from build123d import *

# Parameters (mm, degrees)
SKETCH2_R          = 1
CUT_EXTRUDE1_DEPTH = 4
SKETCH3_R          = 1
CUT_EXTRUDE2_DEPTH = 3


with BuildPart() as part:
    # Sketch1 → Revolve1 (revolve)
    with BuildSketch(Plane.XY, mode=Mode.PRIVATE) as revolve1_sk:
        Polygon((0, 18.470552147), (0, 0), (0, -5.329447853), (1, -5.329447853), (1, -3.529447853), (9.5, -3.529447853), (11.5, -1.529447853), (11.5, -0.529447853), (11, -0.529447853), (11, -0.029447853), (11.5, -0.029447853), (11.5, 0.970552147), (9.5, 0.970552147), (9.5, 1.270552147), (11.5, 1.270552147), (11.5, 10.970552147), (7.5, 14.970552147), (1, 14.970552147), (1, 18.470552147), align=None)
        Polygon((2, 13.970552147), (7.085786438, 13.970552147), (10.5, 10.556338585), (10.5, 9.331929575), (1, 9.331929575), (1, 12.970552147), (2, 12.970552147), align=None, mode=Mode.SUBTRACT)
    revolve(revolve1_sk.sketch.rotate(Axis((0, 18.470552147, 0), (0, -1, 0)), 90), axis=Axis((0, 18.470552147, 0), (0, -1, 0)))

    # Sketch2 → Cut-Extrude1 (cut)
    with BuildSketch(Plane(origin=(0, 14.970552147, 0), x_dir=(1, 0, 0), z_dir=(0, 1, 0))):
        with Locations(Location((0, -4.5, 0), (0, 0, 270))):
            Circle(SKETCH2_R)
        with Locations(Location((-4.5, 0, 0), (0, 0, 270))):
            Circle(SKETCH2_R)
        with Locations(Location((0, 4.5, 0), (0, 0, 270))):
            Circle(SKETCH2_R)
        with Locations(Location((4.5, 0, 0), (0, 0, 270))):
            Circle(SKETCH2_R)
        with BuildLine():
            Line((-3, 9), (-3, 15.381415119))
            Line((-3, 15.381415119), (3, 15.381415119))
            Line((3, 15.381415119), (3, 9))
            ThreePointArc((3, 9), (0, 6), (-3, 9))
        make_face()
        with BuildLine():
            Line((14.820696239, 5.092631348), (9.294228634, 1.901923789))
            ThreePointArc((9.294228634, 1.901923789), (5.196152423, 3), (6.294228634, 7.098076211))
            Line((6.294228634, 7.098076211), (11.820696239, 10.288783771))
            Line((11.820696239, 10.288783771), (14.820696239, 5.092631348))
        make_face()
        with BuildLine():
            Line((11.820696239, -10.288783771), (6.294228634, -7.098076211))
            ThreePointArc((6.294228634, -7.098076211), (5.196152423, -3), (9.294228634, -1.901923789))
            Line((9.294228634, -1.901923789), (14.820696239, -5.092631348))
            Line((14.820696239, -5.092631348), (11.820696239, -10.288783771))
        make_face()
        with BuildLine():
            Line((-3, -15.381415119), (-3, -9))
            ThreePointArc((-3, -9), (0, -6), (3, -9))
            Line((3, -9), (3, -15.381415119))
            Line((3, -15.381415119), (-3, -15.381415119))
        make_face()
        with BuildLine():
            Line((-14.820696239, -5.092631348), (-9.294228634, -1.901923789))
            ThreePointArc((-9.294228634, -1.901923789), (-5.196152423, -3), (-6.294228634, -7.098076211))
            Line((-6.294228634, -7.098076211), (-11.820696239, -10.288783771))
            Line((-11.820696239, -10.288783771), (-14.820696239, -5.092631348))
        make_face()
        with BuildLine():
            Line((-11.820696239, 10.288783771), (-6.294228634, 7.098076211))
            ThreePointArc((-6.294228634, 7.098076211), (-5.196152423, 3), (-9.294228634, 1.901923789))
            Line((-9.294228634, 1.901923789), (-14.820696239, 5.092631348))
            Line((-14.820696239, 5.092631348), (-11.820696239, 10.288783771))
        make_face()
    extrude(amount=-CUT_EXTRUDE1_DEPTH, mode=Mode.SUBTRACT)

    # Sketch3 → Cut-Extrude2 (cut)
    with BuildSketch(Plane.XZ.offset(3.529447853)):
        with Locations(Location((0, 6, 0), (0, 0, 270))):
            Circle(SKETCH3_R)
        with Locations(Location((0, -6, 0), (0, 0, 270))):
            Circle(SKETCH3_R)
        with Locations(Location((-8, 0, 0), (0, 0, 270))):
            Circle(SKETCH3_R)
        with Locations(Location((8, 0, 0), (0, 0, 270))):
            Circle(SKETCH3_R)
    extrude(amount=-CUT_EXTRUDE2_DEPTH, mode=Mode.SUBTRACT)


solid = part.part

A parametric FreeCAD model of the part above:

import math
import FreeCAD as App
import Part
import Sketcher
from FreeCAD import Vector
Q = App.Units.Quantity

doc = App.newDocument("Part")
body = doc.addObject("PartDesign::Body", "Body")

# Sketch on XY plane
sketch1 = doc.addObject("Sketcher::SketchObject", "Sketch")
body.addObject(sketch1)
sketch1.AttachmentSupport = (doc.XY_Plane, [""])
sketch1.MapMode = "FlatFace"
sketch1.addGeometry(Part.LineSegment(Vector(0, 18.47, 0), Vector(0, -5.33, 0)), False)
sketch1.addGeometry(Part.LineSegment(Vector(0, -5.33, 0), Vector(1, -5.33, 0)), False)
sketch1.addGeometry(Part.LineSegment(Vector(1, -5.33, 0), Vector(1, -3.53, 0)), False)
sketch1.addGeometry(Part.LineSegment(Vector(1, -3.53, 0), Vector(9.5, -3.53, 0)), False)
sketch1.addGeometry(Part.LineSegment(Vector(9.5, -3.53, 0), Vector(11.5, -1.53, 0)), False)
sketch1.addGeometry(Part.LineSegment(Vector(11.5, -1.53, 0), Vector(11.5, -0.53, 0)), False)
sketch1.addGeometry(Part.LineSegment(Vector(11.5, -0.53, 0), Vector(11, -0.53, 0)), False)
sketch1.addGeometry(Part.LineSegment(Vector(11, -0.53, 0), Vector(11, -0.03, 0)), False)
sketch1.addGeometry(Part.LineSegment(Vector(11, -0.03, 0), Vector(11.5, -0.03, 0)), False)
sketch1.addGeometry(Part.LineSegment(Vector(11.5, -0.03, 0), Vector(11.5, 0.97, 0)), False)
sketch1.addGeometry(Part.LineSegment(Vector(11.5, 0.97, 0), Vector(9.5, 0.97, 0)), False)
sketch1.addGeometry(Part.LineSegment(Vector(9.5, 0.97, 0), Vector(9.5, 1.27, 0)), False)
sketch1.addGeometry(Part.LineSegment(Vector(9.5, 1.27, 0), Vector(11.5, 1.27, 0)), False)
sketch1.addGeometry(Part.LineSegment(Vector(11.5, 1.27, 0), Vector(11.5, 10.97, 0)), False)
sketch1.addGeometry(Part.LineSegment(Vector(11.5, 10.97, 0), Vector(7.5, 14.97, 0)), False)
sketch1.addGeometry(Part.LineSegment(Vector(7.5, 14.97, 0), Vector(1, 14.97, 0)), False)
sketch1.addGeometry(Part.LineSegment(Vector(1, 14.97, 0), Vector(1, 18.47, 0)), False)
sketch1.addGeometry(Part.LineSegment(Vector(1, 18.47, 0), Vector(0, 18.47, 0)), False)
sketch1.addGeometry(Part.LineSegment(Vector(2, 12.97, 0), Vector(2, 13.97, 0)), False)
sketch1.addGeometry(Part.LineSegment(Vector(2, 13.97, 0), Vector(7.09, 13.97, 0)), False)
sketch1.addGeometry(Part.LineSegment(Vector(7.09, 13.97, 0), Vector(10.5, 10.56, 0)), False)
sketch1.addGeometry(Part.LineSegment(Vector(10.5, 10.56, 0), Vector(10.5, 9.33, 0)), False)
sketch1.addGeometry(Part.LineSegment(Vector(10.5, 9.33, 0), Vector(1, 9.33, 0)), False)
sketch1.addGeometry(Part.LineSegment(Vector(1, 9.33, 0), Vector(1, 12.97, 0)), False)
sketch1.addGeometry(Part.LineSegment(Vector(1, 12.97, 0), Vector(2, 12.97, 0)), False)
sketch1.addConstraint(Sketcher.Constraint("Coincident", 0, 2, 1, 1))
sketch1.addConstraint(Sketcher.Constraint("Coincident", 1, 2, 2, 1))
sketch1.addConstraint(Sketcher.Constraint("Coincident", 2, 2, 3, 1))
sketch1.addConstraint(Sketcher.Constraint("Coincident", 3, 2, 4, 1))
sketch1.addConstraint(Sketcher.Constraint("Coincident", 4, 2, 5, 1))
sketch1.addConstraint(Sketcher.Constraint("Coincident", 5, 2, 6, 1))
sketch1.addConstraint(Sketcher.Constraint("Coincident", 6, 2, 7, 1))
sketch1.addConstraint(Sketcher.Constraint("Coincident", 7, 2, 8, 1))
sketch1.addConstraint(Sketcher.Constraint("Coincident", 8, 2, 9, 1))
sketch1.addConstraint(Sketcher.Constraint("Coincident", 9, 2, 10, 1))
sketch1.addConstraint(Sketcher.Constraint("Coincident", 10, 2, 11, 1))
sketch1.addConstraint(Sketcher.Constraint("Coincident", 11, 2, 12, 1))
sketch1.addConstraint(Sketcher.Constraint("Coincident", 12, 2, 13, 1))
sketch1.addConstraint(Sketcher.Constraint("Coincident", 13, 2, 14, 1))
sketch1.addConstraint(Sketcher.Constraint("Coincident", 14, 2, 15, 1))
sketch1.addConstraint(Sketcher.Constraint("Coincident", 15, 2, 16, 1))
sketch1.addConstraint(Sketcher.Constraint("Coincident", 16, 2, 17, 1))
sketch1.addConstraint(Sketcher.Constraint("Coincident", 17, 2, 0, 1))
sketch1.addConstraint(Sketcher.Constraint("Coincident", 18, 2, 19, 1))
sketch1.addConstraint(Sketcher.Constraint("Coincident", 19, 2, 20, 1))
sketch1.addConstraint(Sketcher.Constraint("Coincident", 20, 2, 21, 1))
sketch1.addConstraint(Sketcher.Constraint("Coincident", 21, 2, 22, 1))
sketch1.addConstraint(Sketcher.Constraint("Coincident", 22, 2, 23, 1))
sketch1.addConstraint(Sketcher.Constraint("Coincident", 23, 2, 24, 1))
sketch1.addConstraint(Sketcher.Constraint("Coincident", 24, 2, 18, 1))
sketch1.addConstraint(Sketcher.Constraint("Vertical", 0))
sketch1.addConstraint(Sketcher.Constraint("Horizontal", 1))
sketch1.addConstraint(Sketcher.Constraint("Vertical", 2))
sketch1.addConstraint(Sketcher.Constraint("Horizontal", 3))
sketch1.addConstraint(Sketcher.Constraint("Vertical", 5))
sketch1.addConstraint(Sketcher.Constraint("Horizontal", 6))
sketch1.addConstraint(Sketcher.Constraint("Vertical", 7))
sketch1.addConstraint(Sketcher.Constraint("Horizontal", 8))
sketch1.addConstraint(Sketcher.Constraint("Vertical", 9))
sketch1.addConstraint(Sketcher.Constraint("Horizontal", 10))
sketch1.addConstraint(Sketcher.Constraint("Vertical", 11))
sketch1.addConstraint(Sketcher.Constraint("Horizontal", 12))
sketch1.addConstraint(Sketcher.Constraint("Vertical", 13))
sketch1.addConstraint(Sketcher.Constraint("Horizontal", 15))
sketch1.addConstraint(Sketcher.Constraint("Vertical", 16))
sketch1.addConstraint(Sketcher.Constraint("Horizontal", 17))
sketch1.addConstraint(Sketcher.Constraint("Vertical", 18))
sketch1.addConstraint(Sketcher.Constraint("Horizontal", 19))
sketch1.addConstraint(Sketcher.Constraint("Vertical", 21))
sketch1.addConstraint(Sketcher.Constraint("Horizontal", 22))
sketch1.addConstraint(Sketcher.Constraint("Vertical", 23))
sketch1.addConstraint(Sketcher.Constraint("Horizontal", 24))
sketch1.addConstraint(Sketcher.Constraint("PointOnObject", 0, 2, -2))
sketch1.addConstraint(Sketcher.Constraint("Perpendicular", 4, 14))
sketch1.addConstraint(Sketcher.Constraint("Parallel", 14, 20))
sketch1.addConstraint(Sketcher.Constraint("Vertical", 5, 2, 8, 2))
sketch1.addConstraint(Sketcher.Constraint("Vertical", 3, 2, 10, 2))
sketch1.addConstraint(Sketcher.Constraint("Vertical", 9, 2, 12, 2))
sketch1.addConstraint(Sketcher.Constraint("Vertical", 2, 2, 15, 2))
sketch1.addConstraint(Sketcher.Constraint("Vertical", 16, 2, 22, 2))
sketch1.addConstraint(Sketcher.Constraint("Equal", 17, 24))
sketch1.addConstraint(Sketcher.Constraint("Equal", 24, 5))
sketch1.addConstraint(Sketcher.Constraint("Equal", 8, 7))
sketch1.addConstraint(Sketcher.Constraint("Equal", 5, 9))
sketch1.addConstraint(Sketcher.Constraint("Equal", 9, 18))
sketch1.addConstraint(Sketcher.Constraint("DistanceX", 1, 1, 1, 2, Q("1 mm")))
sketch1.addConstraint(Sketcher.Constraint("DistanceX", 10, 2, 10, 1, Q("2 mm")))
sketch1.addConstraint(Sketcher.Constraint("Angle", 4, Q("45 deg")))
sketch1.addConstraint(Sketcher.Constraint("DistanceX", 3, 1, 3, 2, Q("8.5 mm")))
sketch1.addConstraint(Sketcher.Constraint("DistanceX", 6, 2, 6, 1, Q("0.5 mm")))
sketch1.addConstraint(Sketcher.Constraint("DistanceX", 15, 2, 15, 1, Q("6.5 mm")))
sketch1.addConstraint(Sketcher.Constraint("DistanceX", 22, 2, 22, 1, Q("9.5 mm")))
sketch1.addConstraint(Sketcher.Constraint("DistanceY", 0, 2, 0, 1, Q("23.8 mm")))
sketch1.addConstraint(Sketcher.Constraint("DistanceY", 2, 1, 2, 2, Q("1.8 mm")))
sketch1.addConstraint(Sketcher.Constraint("DistanceY", 11, 1, 11, 2, Q("0.3 mm")))
sketch1.addConstraint(Sketcher.Constraint("DistanceY", 13, 1, 13, 2, Q("9.7 mm")))
sketch1.addConstraint(Sketcher.Constraint("DistanceY", 18, 2, 15, 2, Q("1 mm")))
sketch1.addConstraint(Sketcher.Constraint("DistanceY", 21, 2, 21, 1, Q("1.224409 mm")))
sketch1.addConstraint(Sketcher.Constraint("DistanceX", 19, 1, 19, 2, Q("5.085786 mm")))
sketch1.addConstraint(Sketcher.Constraint("DistanceY", -1, 1, 20, 2, Q("10.556339 mm")))
revolution = doc.addObject("PartDesign::Revolution", "Revolution")
body.addObject(revolution)
revolution.Profile = sketch1
revolution.ReferenceAxis = (sketch1, ["V_Axis"])
revolution.Angle = 360

# Sketch on XZ plane
sketch2 = doc.addObject("Sketcher::SketchObject", "Sketch001")
body.addObject(sketch2)
sketch2.AttachmentSupport = (doc.XZ_Plane, [""])
sketch2.MapMode = "FlatFace"
sketch2.AttachmentOffset = App.Placement(Vector(0, 0, -14.970552), App.Rotation())
sketch2.addGeometry(Part.Circle(Vector(0, 4.5, 0), Vector(0, 0, 1), 1), False)
sketch2.addGeometry(Part.Circle(Vector(-4.5, 0, 0), Vector(0, 0, 1), 1), False)
sketch2.addGeometry(Part.Circle(Vector(0, -4.5, 0), Vector(0, 0, 1), 1), False)
sketch2.addGeometry(Part.Circle(Vector(4.5, 0, 0), Vector(0, 0, 1), 1), False)
sketch2.addGeometry(Part.LineSegment(Vector(-3, -15.4, 0), Vector(-3, -9, 0)), False)
sketch2.addGeometry(Part.ArcOfCircle(Part.Circle(Vector(0, -9, 0), Vector(0, 0, 1), 3), math.radians(0), math.radians(180)), False)
sketch2.addGeometry(Part.LineSegment(Vector(3, -9, 0), Vector(3, -15.4, 0)), False)
sketch2.addGeometry(Part.LineSegment(Vector(3, -15.4, 0), Vector(-3, -15.4, 0)), False)
sketch2.addGeometry(Part.LineSegment(Vector(9.3, -1.9, 0), Vector(14.8, -5.1, 0)), False)
sketch2.addGeometry(Part.LineSegment(Vector(14.8, -5.1, 0), Vector(11.8, -10.3, 0)), False)
sketch2.addGeometry(Part.LineSegment(Vector(11.8, -10.3, 0), Vector(6.3, -7.1, 0)), False)
sketch2.addGeometry(Part.ArcOfCircle(Part.Circle(Vector(7.8, -4.5, 0), Vector(0, 0, 1), 3), math.radians(60), math.radians(240)), False)
sketch2.addGeometry(Part.LineSegment(Vector(6.3, 7.1, 0), Vector(11.8, 10.3, 0)), False)
sketch2.addGeometry(Part.LineSegment(Vector(11.8, 10.3, 0), Vector(14.8, 5.1, 0)), False)
sketch2.addGeometry(Part.LineSegment(Vector(14.8, 5.1, 0), Vector(9.3, 1.9, 0)), False)
sketch2.addGeometry(Part.ArcOfCircle(Part.Circle(Vector(7.8, 4.5, 0), Vector(0, 0, 1), 3), math.radians(120), math.radians(300)), False)
sketch2.addGeometry(Part.LineSegment(Vector(-3, 9, 0), Vector(-3, 15.4, 0)), False)
sketch2.addGeometry(Part.LineSegment(Vector(-3, 15.4, 0), Vector(3, 15.4, 0)), False)
sketch2.addGeometry(Part.LineSegment(Vector(3, 15.4, 0), Vector(3, 9, 0)), False)
sketch2.addGeometry(Part.ArcOfCircle(Part.Circle(Vector(0, 9, 0), Vector(0, 0, 1), 3), math.radians(180), math.radians(360)), False)
sketch2.addGeometry(Part.LineSegment(Vector(-9.3, 1.9, 0), Vector(-14.8, 5.1, 0)), False)
sketch2.addGeometry(Part.LineSegment(Vector(-14.8, 5.1, 0), Vector(-11.8, 10.3, 0)), False)
sketch2.addGeometry(Part.LineSegment(Vector(-11.8, 10.3, 0), Vector(-6.3, 7.1, 0)), False)
sketch2.addGeometry(Part.ArcOfCircle(Part.Circle(Vector(-7.8, 4.5, 0), Vector(0, 0, 1), 3), math.radians(-120), math.radians(60)), False)
sketch2.addGeometry(Part.LineSegment(Vector(-6.3, -7.1, 0), Vector(-11.8, -10.3, 0)), False)
sketch2.addGeometry(Part.LineSegment(Vector(-11.8, -10.3, 0), Vector(-14.8, -5.1, 0)), False)
sketch2.addGeometry(Part.LineSegment(Vector(-14.8, -5.1, 0), Vector(-9.3, -1.9, 0)), False)
sketch2.addGeometry(Part.ArcOfCircle(Part.Circle(Vector(-7.8, -4.5, 0), Vector(0, 0, 1), 3), math.radians(-60), math.radians(120)), False)
sketch2.addConstraint(Sketcher.Constraint("Tangent", 4, 2, 5, 2))
sketch2.addConstraint(Sketcher.Constraint("Tangent", 5, 1, 6, 1))
sketch2.addConstraint(Sketcher.Constraint("Coincident", 6, 2, 7, 1))
sketch2.addConstraint(Sketcher.Constraint("Coincident", 7, 2, 4, 1))
sketch2.addConstraint(Sketcher.Constraint("Coincident", 8, 2, 9, 1))
sketch2.addConstraint(Sketcher.Constraint("Coincident", 9, 2, 10, 1))
sketch2.addConstraint(Sketcher.Constraint("Tangent", 10, 2, 11, 2))
sketch2.addConstraint(Sketcher.Constraint("Tangent", 11, 1, 8, 1))
sketch2.addConstraint(Sketcher.Constraint("Coincident", 12, 2, 13, 1))
sketch2.addConstraint(Sketcher.Constraint("Coincident", 13, 2, 14, 1))
sketch2.addConstraint(Sketcher.Constraint("Tangent", 14, 2, 15, 2))
sketch2.addConstraint(Sketcher.Constraint("Tangent", 15, 1, 12, 1))
sketch2.addConstraint(Sketcher.Constraint("Coincident", 16, 2, 17, 1))
sketch2.addConstraint(Sketcher.Constraint("Coincident", 17, 2, 18, 1))
sketch2.addConstraint(Sketcher.Constraint("Tangent", 18, 2, 19, 2))
sketch2.addConstraint(Sketcher.Constraint("Tangent", 19, 1, 16, 1))
sketch2.addConstraint(Sketcher.Constraint("Coincident", 20, 2, 21, 1))
sketch2.addConstraint(Sketcher.Constraint("Coincident", 21, 2, 22, 1))
sketch2.addConstraint(Sketcher.Constraint("Tangent", 22, 2, 23, 2))
sketch2.addConstraint(Sketcher.Constraint("Tangent", 23, 1, 20, 1))
sketch2.addConstraint(Sketcher.Constraint("Coincident", 24, 2, 25, 1))
sketch2.addConstraint(Sketcher.Constraint("Coincident", 25, 2, 26, 1))
sketch2.addConstraint(Sketcher.Constraint("Tangent", 26, 2, 27, 2))
sketch2.addConstraint(Sketcher.Constraint("Tangent", 27, 1, 24, 1))
sketch2.addConstraint(Sketcher.Constraint("Vertical", 4))
sketch2.addConstraint(Sketcher.Constraint("Vertical", 6))
sketch2.addConstraint(Sketcher.Constraint("Horizontal", 7))
sketch2.addConstraint(Sketcher.Constraint("Vertical", 16))
sketch2.addConstraint(Sketcher.Constraint("Horizontal", 17))
sketch2.addConstraint(Sketcher.Constraint("Vertical", 18))
sketch2.addConstraint(Sketcher.Constraint("Equal", 0, 1))
sketch2.addConstraint(Sketcher.Constraint("Equal", 1, 2))
sketch2.addConstraint(Sketcher.Constraint("Equal", 2, 3))
sketch2.addConstraint(Sketcher.Constraint("Equal", 5, 11))
sketch2.addConstraint(Sketcher.Constraint("Equal", 11, 15))
sketch2.addConstraint(Sketcher.Constraint("Equal", 15, 19))
sketch2.addConstraint(Sketcher.Constraint("Equal", 19, 23))
sketch2.addConstraint(Sketcher.Constraint("Equal", 23, 27))
sketch2.addConstraint(Sketcher.Constraint("Symmetric", 0, 3, 2, 3, -1, 1))
sketch2.addConstraint(Sketcher.Constraint("Symmetric", 1, 3, 3, 3, -1, 1))
sketch2.addConstraint(Sketcher.Constraint("Symmetric", 5, 3, 19, 3, -1, 1))
sketch2.addConstraint(Sketcher.Constraint("Symmetric", 11, 3, 23, 3, -1, 1))
sketch2.addConstraint(Sketcher.Constraint("Symmetric", 15, 3, 27, 3, -1, 1))
sketch2.addConstraint(Sketcher.Constraint("Symmetric", 8, 2, 20, 2, -1, 1))
sketch2.addConstraint(Sketcher.Constraint("Symmetric", 9, 2, 21, 2, -1, 1))
sketch2.addConstraint(Sketcher.Constraint("Symmetric", 12, 2, 24, 2, -1, 1))
sketch2.addConstraint(Sketcher.Constraint("Symmetric", 13, 2, 25, 2, -1, 1))
sketch2.addConstraint(Sketcher.Constraint("Symmetric", 15, 3, 23, 3, -2))
sketch2.addConstraint(Sketcher.Constraint("Symmetric", 13, 2, 20, 2, -2))
sketch2.addConstraint(Sketcher.Constraint("Symmetric", 12, 2, 21, 2, -2))
sketch2.addConstraint(Sketcher.Constraint("Symmetric", 7, 2, 16, 2, -1))
sketch2.addConstraint(Sketcher.Constraint("PointOnObject", 0, 3, -2))
sketch2.addConstraint(Sketcher.Constraint("PointOnObject", 1, 3, -1))
sketch2.addConstraint(Sketcher.Constraint("Perpendicular", 8, 9))
sketch2.addConstraint(Sketcher.Constraint("Perpendicular", 9, 10))
sketch2.addConstraint(Sketcher.Constraint("Horizontal", 2, 3, 11, 3))
sketch2.addConstraint(Sketcher.Constraint("Diameter", 0, Q("2 mm")))
sketch2.addConstraint(Sketcher.Constraint("Radius", 5, Q("3 mm")))
sketch2.addConstraint(Sketcher.Constraint("Angle", 8, Q("-30 deg")))
sketch2.addConstraint(Sketcher.Constraint("DistanceY", 5, 3, -1, 1, Q("9 mm")))
sketch2.addConstraint(Sketcher.Constraint("DistanceY", 2, 3, 0, 3, Q("9 mm")))
sketch2.addConstraint(Sketcher.Constraint("DistanceX", 1, 3, 3, 3, Q("9 mm")))
sketch2.addConstraint(Sketcher.Constraint("DistanceY", 4, 1, 4, 2, Q("6.381415 mm")))
sketch2.addConstraint(Sketcher.Constraint("DistanceX", -1, 1, 11, 3, Q("7.794229 mm")))
sketch2.addConstraint(Sketcher.Constraint("DistanceY", 8, 2, -1, 1, Q("5.092631 mm")))
pocket1 = doc.addObject("PartDesign::Pocket", "Pocket")
body.addObject(pocket1)
pocket1.Profile = sketch2
pocket1.Length = 4
pocket1.Reversed = True

# Sketch on XZ plane
sketch3 = doc.addObject("Sketcher::SketchObject", "Sketch002")
body.addObject(sketch3)
sketch3.AttachmentSupport = (doc.XZ_Plane, [""])
sketch3.MapMode = "FlatFace"
sketch3.AttachmentOffset = App.Placement(Vector(0, 0, 3.529448), App.Rotation())
sketch3.addGeometry(Part.Circle(Vector(0, 6, 0), Vector(0, 0, 1), 1), False)
sketch3.addGeometry(Part.Circle(Vector(0, -6, 0), Vector(0, 0, 1), 1), False)
sketch3.addGeometry(Part.Circle(Vector(-8, 0, 0), Vector(0, 0, 1), 1), False)
sketch3.addGeometry(Part.Circle(Vector(8, 0, 0), Vector(0, 0, 1), 1), False)
sketch3.addConstraint(Sketcher.Constraint("Equal", 0, 1))
sketch3.addConstraint(Sketcher.Constraint("Equal", 1, 2))
sketch3.addConstraint(Sketcher.Constraint("Equal", 2, 3))
sketch3.addConstraint(Sketcher.Constraint("Symmetric", 0, 3, 1, 3, -1, 1))
sketch3.addConstraint(Sketcher.Constraint("Symmetric", 2, 3, 3, 3, -1, 1))
sketch3.addConstraint(Sketcher.Constraint("PointOnObject", 0, 3, -2))
sketch3.addConstraint(Sketcher.Constraint("PointOnObject", 2, 3, -1))
sketch3.addConstraint(Sketcher.Constraint("Diameter", 0, Q("2 mm")))
sketch3.addConstraint(Sketcher.Constraint("DistanceY", -1, 1, 0, 3, Q("6 mm")))
sketch3.addConstraint(Sketcher.Constraint("DistanceX", 2, 3, -1, 1, Q("8 mm")))
pocket2 = doc.addObject("PartDesign::Pocket", "Pocket001")
body.addObject(pocket2)
pocket2.Profile = sketch3
pocket2.Length = 3

doc.recompute()
